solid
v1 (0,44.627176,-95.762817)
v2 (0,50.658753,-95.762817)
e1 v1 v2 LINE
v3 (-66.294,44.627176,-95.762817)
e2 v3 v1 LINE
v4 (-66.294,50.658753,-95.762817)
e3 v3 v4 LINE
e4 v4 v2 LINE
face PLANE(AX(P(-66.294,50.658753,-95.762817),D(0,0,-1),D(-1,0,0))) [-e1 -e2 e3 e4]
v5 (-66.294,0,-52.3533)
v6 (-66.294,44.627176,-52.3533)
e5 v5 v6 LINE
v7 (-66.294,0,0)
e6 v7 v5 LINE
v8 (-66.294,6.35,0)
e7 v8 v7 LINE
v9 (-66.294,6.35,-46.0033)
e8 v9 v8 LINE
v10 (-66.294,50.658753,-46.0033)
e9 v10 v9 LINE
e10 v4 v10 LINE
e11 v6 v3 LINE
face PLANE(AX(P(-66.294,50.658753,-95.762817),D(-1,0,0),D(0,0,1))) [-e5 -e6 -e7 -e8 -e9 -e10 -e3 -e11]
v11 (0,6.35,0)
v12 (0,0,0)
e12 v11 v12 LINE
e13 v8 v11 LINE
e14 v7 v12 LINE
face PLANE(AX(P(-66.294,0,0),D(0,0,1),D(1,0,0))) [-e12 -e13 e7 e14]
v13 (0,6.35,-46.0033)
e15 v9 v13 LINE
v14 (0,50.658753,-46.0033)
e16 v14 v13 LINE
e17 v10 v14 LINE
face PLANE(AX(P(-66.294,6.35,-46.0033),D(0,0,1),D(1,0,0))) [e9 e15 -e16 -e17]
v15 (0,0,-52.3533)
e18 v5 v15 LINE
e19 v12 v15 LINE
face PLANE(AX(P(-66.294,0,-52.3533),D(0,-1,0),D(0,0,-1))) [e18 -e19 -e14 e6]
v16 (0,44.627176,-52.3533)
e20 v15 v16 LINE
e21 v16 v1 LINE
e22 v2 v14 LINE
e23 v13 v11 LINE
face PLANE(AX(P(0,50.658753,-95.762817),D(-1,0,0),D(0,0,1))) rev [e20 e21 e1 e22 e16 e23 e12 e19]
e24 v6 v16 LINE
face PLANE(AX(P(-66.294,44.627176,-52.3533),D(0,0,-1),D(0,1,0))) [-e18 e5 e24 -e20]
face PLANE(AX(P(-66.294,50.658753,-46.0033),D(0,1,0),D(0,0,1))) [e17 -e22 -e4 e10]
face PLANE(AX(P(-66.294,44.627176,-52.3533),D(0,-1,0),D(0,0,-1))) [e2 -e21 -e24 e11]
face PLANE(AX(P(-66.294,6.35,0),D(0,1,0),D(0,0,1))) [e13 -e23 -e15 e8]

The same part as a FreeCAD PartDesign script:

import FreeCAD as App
import Part
import Sketcher
Q = App.Units.Quantity


def add_polygon(sketch, points):
    """Adds a closed chain of lines whose ends are joined by coincident constraints."""
    first, n = sketch.GeometryCount, len(points)
    for a, b in zip(points, points[1:] + points[:1]):
        sketch.addGeometry(Part.LineSegment(App.Vector(*a, 0), App.Vector(*b, 0)), False)
    for i in range(n):
        sketch.addConstraint(Sketcher.Constraint("Coincident", first + i, 2, first + (i + 1) % n, 1))

doc = App.newDocument("Part")
body = doc.addObject("PartDesign::Body", "Body")

# Sketch on YZ plane
sketch1 = body.newObject("Sketcher::SketchObject", "Sketch")
sketch1.AttachmentSupport = (doc.getObject("YZ_Plane"), [""])
sketch1.MapMode = "FlatFace"
add_polygon(sketch1, [(0, -52.3533), (44.627176, -52.3533), (44.627176, -95.762817), (50.658753, -95.762817), (50.658753, -46.0033), (6.35, -46.0033), (6.35, 0), (0, 0)])  # lines 0-7
sketch1.addConstraint(Sketcher.Constraint("Horizontal", 0))
sketch1.addConstraint(Sketcher.Constraint("Vertical", 1))
sketch1.addConstraint(Sketcher.Constraint("Horizontal", 2))
sketch1.addConstraint(Sketcher.Constraint("Vertical", 3))
sketch1.addConstraint(Sketcher.Constraint("Horizontal", 4))
sketch1.addConstraint(Sketcher.Constraint("Vertical", 5))
sketch1.addConstraint(Sketcher.Constraint("Horizontal", 6))
sketch1.addConstraint(Sketcher.Constraint("Vertical", 7))
sketch1.addConstraint(Sketcher.Constraint("Coincident", 6, 2, -1, 1))
sketch1.addConstraint(Sketcher.Constraint("DistanceX", 6, 2, 6, 1, Q("0.25 in")))
sketch1.addConstraint(Sketcher.Constraint("DistanceY", 0, 2, 3, 2, Q("0.25 in")))
sketch1.addConstraint(Sketcher.Constraint("DistanceY", 5, 1, 5, 2, Q("46.0033 mm")))
sketch1.addConstraint(Sketcher.Constraint("DistanceX", 0, 1, 0, 2, Q("44.627176 mm")))
sketch1.addConstraint(Sketcher.Constraint("DistanceX", 2, 1, 2, 2, Q("6.031577 mm")))
sketch1.addConstraint(Sketcher.Constraint("DistanceY", 1, 2, 1, 1, Q("43.409517 mm")))
pad1 = body.newObject("PartDesign::Pad", "Pad")
pad1.Profile = sketch1
pad1.Length = Q("2.61 in")
pad1.Reversed = True

doc.recompute()
